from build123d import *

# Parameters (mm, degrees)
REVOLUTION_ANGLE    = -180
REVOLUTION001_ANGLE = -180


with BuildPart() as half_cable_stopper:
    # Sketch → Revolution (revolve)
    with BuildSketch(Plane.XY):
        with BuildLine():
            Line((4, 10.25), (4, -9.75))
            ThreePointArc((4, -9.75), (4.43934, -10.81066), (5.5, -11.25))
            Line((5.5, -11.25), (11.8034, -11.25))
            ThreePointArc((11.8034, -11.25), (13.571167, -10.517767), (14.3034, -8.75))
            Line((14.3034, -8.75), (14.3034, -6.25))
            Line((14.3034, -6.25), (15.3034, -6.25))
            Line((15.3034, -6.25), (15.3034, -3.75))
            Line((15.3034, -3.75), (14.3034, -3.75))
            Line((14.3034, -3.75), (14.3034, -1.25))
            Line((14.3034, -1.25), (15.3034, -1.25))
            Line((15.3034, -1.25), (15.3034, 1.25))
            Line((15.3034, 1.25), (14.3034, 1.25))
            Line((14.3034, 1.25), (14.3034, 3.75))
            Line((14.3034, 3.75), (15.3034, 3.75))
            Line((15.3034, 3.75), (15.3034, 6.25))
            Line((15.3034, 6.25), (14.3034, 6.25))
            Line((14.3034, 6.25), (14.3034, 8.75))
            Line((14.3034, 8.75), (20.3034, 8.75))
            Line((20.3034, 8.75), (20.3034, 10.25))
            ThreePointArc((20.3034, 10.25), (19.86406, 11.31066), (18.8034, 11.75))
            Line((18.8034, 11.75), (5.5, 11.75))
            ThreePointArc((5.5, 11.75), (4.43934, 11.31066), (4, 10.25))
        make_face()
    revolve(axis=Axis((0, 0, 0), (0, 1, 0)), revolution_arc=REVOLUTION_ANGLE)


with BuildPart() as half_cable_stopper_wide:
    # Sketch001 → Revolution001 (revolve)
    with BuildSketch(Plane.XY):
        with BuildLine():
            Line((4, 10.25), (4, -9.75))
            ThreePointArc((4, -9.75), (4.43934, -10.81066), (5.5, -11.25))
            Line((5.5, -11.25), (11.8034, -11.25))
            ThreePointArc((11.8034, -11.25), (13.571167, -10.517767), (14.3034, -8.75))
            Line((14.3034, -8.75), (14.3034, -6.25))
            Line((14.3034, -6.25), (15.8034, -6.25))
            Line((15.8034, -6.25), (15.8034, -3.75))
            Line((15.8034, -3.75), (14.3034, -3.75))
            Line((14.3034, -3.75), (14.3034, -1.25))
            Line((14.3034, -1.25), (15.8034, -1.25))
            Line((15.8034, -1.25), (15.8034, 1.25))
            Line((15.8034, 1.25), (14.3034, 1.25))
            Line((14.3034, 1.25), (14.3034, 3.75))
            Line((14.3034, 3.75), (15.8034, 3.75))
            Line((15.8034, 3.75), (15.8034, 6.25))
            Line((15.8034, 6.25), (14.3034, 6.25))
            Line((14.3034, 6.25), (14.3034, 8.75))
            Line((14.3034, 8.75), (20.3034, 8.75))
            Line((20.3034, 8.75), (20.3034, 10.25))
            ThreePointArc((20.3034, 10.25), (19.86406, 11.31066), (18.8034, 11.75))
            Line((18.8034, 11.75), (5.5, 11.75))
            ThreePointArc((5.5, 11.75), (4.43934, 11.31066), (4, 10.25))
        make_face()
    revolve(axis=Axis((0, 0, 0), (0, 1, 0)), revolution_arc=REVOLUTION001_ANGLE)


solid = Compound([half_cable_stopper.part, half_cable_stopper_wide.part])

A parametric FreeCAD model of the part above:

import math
import FreeCAD as App
import Part
import Sketcher

V = App.Vector

doc = App.newDocument("Part")
body = doc.addObject("PartDesign::Body", "Body")

# Sketch on XY plane
sketch1 = body.newObject("Sketcher::SketchObject", "Sketch")
sketch1.AttachmentSupport = (doc.getObject("XY_Plane"), [""])
sketch1.MapMode = "FlatFace"
sketch1.addGeometry([
    Part.LineSegment(V(4, 10.2, 0), V(4, -9.8, 0)),  # 0
    Part.ArcOfCircle(Part.Circle(V(5.5, -9.7, 0), V(0, 0, 1), 1.5), math.radians(-180), math.radians(-90)),  # 1
    Part.LineSegment(V(5.5, -11.2, 0), V(11.8, -11.2, 0)),  # 2
    Part.ArcOfCircle(Part.Circle(V(11.8, -8.8, 0), V(0, 0, 1), 2.5), math.radians(-90), math.radians(0)),  # 3
    Part.LineSegment(V(14.3, -8.8, 0), V(14.3, -6.2, 0)),  # 4
    Part.LineSegment(V(14.3, -6.2, 0), V(15.3, -6.2, 0)),  # 5
    Part.LineSegment(V(15.3, -6.2, 0), V(15.3, -3.8, 0)),  # 6
    Part.LineSegment(V(15.3, -3.8, 0), V(14.3, -3.8, 0)),  # 7
    Part.LineSegment(V(14.3, -3.8, 0), V(14.3, -1.2, 0)),  # 8
    Part.LineSegment(V(14.3, -1.2, 0), V(15.3, -1.2, 0)),  # 9
    Part.LineSegment(V(15.3, -1.2, 0), V(15.3, 1.2, 0)),  # 10
    Part.LineSegment(V(15.3, 1.2, 0), V(14.3, 1.2, 0)),  # 11
    Part.LineSegment(V(14.3, 1.2, 0), V(14.3, 3.8, 0)),  # 12
    Part.LineSegment(V(14.3, 3.8, 0), V(15.3, 3.8, 0)),  # 13
    Part.LineSegment(V(15.3, 3.8, 0), V(15.3, 6.2, 0)),  # 14
    Part.LineSegment(V(15.3, 6.2, 0), V(14.3, 6.2, 0)),  # 15
    Part.LineSegment(V(14.3, 6.2, 0), V(14.3, 8.8, 0)),  # 16
    Part.LineSegment(V(14.3, 8.8, 0), V(20.3, 8.8, 0)),  # 17
    Part.LineSegment(V(20.3, 8.8, 0), V(20.3, 10.2, 0)),  # 18
    Part.ArcOfCircle(Part.Circle(V(18.8, 10.2, 0), V(0, 0, 1), 1.5), math.radians(0), math.radians(90)),  # 19
    Part.LineSegment(V(18.8, 11.8, 0), V(5.5, 11.8, 0)),  # 20
    Part.ArcOfCircle(Part.Circle(V(5.5, 10.2, 0), V(0, 0, 1), 1.5), math.radians(90), math.radians(180)),  # 21
], False)
sketch1.addConstraint([
    Sketcher.Constraint("Tangent", 0, 2, 1, 1),
    Sketcher.Constraint("Tangent", 1, 2, 2, 1),
    Sketcher.Constraint("Tangent", 2, 2, 3, 1),
    Sketcher.Constraint("Tangent", 3, 2, 4, 1),
    Sketcher.Constraint("Coincident", 4, 2, 5, 1),
    Sketcher.Constraint("Coincident", 5, 2, 6, 1),
    Sketcher.Constraint("Coincident", 6, 2, 7, 1),
    Sketcher.Constraint("Coincident", 7, 2, 8, 1),
    Sketcher.Constraint("Coincident", 8, 2, 9, 1),
    Sketcher.Constraint("Coincident", 9, 2, 10, 1),
    Sketcher.Constraint("Coincident", 10, 2, 11, 1),
    Sketcher.Constraint("Coincident", 11, 2, 12, 1),
    Sketcher.Constraint("Coincident", 12, 2, 13, 1),
    Sketcher.Constraint("Coincident", 13, 2, 14, 1),
    Sketcher.Constraint("Coincident", 14, 2, 15, 1),
    Sketcher.Constraint("Coincident", 15, 2, 16, 1),
    Sketcher.Constraint("Coincident", 16, 2, 17, 1),
    Sketcher.Constraint("Coincident", 17, 2, 18, 1),
    Sketcher.Constraint("Tangent", 18, 2, 19, 1),
    Sketcher.Constraint("Tangent", 19, 2, 20, 1),
    Sketcher.Constraint("Tangent", 20, 2, 21, 1),
    Sketcher.Constraint("Tangent", 21, 2, 0, 1),
    Sketcher.Constraint("Vertical", 0),
    Sketcher.Constraint("Horizontal", 2),
    Sketcher.Constraint("Vertical", 4),
    Sketcher.Constraint("Horizontal", 5),
    Sketcher.Constraint("Vertical", 6),
    Sketcher.Constraint("Horizontal", 7),
    Sketcher.Constraint("Vertical", 8),
    Sketcher.Constraint("Horizontal", 9),
    Sketcher.Constraint("Vertical", 10),
    Sketcher.Constraint("Horizontal", 11),
    Sketcher.Constraint("Vertical", 12),
    Sketcher.Constraint("Horizontal", 13),
    Sketcher.Constraint("Vertical", 14),
    Sketcher.Constraint("Horizontal", 15),
    Sketcher.Constraint("Vertical", 16),
    Sketcher.Constraint("Horizontal", 17),
    Sketcher.Constraint("Vertical", 18),
    Sketcher.Constraint("Horizontal", 20),
    Sketcher.Constraint("Equal", 1, 19),
    Sketcher.Constraint("Equal", 19, 21),
    Sketcher.Constraint("Symmetric", 8, 2, 11, 2, -1),
    Sketcher.Constraint("Symmetric", 6, 2, 13, 2, -1),
    Sketcher.Constraint("Symmetric", 4, 2, 15, 2, -1),
    Sketcher.Constraint("Vertical", 4, 2, 7, 2),
    Sketcher.Constraint("Vertical", 6, 2, 9, 2),
    Sketcher.Constraint("Equal", 4, 6),
    Sketcher.Constraint("Equal", 6, 8),
    Sketcher.Constraint("Equal", 8, 10),
    Sketcher.Constraint("Equal", 14, 16),
    Sketcher.Constraint("Radius", 1, 1.500001),
    Sketcher.Constraint("Radius", 3, 2.5),
    Sketcher.Constraint("DistanceX", 5, 1, 5, 2, 1.0),
    Sketcher.Constraint("DistanceX", 17, 1, 17, 2, 6.0),
    Sketcher.Constraint("DistanceY", 0, 2, 0, 1, 20.0),
    Sketcher.Constraint("DistanceY", 4, 1, 4, 2, 2.5),
    Sketcher.Constraint("DistanceX", -1, 1, 0, 2, 4.0),
    Sketcher.Constraint("DistanceX", 2, 1, 2, 2, 6.3034),
])
revolution = body.newObject("PartDesign::Revolution", "Revolution")
revolution.Profile = sketch1
revolution.ReferenceAxis = (sketch1, ["V_Axis"])
revolution.Angle = 180
revolution.Reversed = True
body2 = doc.addObject("PartDesign::Body", "Body001")

# Sketch on XY plane
sketch2 = body2.newObject("Sketcher::SketchObject", "Sketch001")
sketch2.AttachmentSupport = (doc.getObject("XY_Plane001"), [""])
sketch2.MapMode = "FlatFace"
sketch2.addGeometry([
    Part.LineSegment(V(4, 10.2, 0), V(4, -9.8, 0)),  # 0
    Part.ArcOfCircle(Part.Circle(V(5.5, -9.7, 0), V(0, 0, 1), 1.5), math.radians(-180), math.radians(-90)),  # 1
    Part.LineSegment(V(5.5, -11.2, 0), V(11.8, -11.2, 0)),  # 2
    Part.ArcOfCircle(Part.Circle(V(11.8, -8.8, 0), V(0, 0, 1), 2.5), math.radians(-90), math.radians(0)),  # 3
    Part.LineSegment(V(14.3, -8.8, 0), V(14.3, -6.2, 0)),  # 4
    Part.LineSegment(V(14.3, -6.2, 0), V(15.8, -6.2, 0)),  # 5
    Part.LineSegment(V(15.8, -6.2, 0), V(15.8, -3.8, 0)),  # 6
    Part.LineSegment(V(15.8, -3.8, 0), V(14.3, -3.8, 0)),  # 7
    Part.LineSegment(V(14.3, -3.8, 0), V(14.3, -1.2, 0)),  # 8
    Part.LineSegment(V(14.3, -1.2, 0), V(15.8, -1.2, 0)),  # 9
    Part.LineSegment(V(15.8, -1.2, 0), V(15.8, 1.2, 0)),  # 10
    Part.LineSegment(V(15.8, 1.2, 0), V(14.3, 1.2, 0)),  # 11
    Part.LineSegment(V(14.3, 1.2, 0), V(14.3, 3.8, 0)),  # 12
    Part.LineSegment(V(14.3, 3.8, 0), V(15.8, 3.8, 0)),  # 13
    Part.LineSegment(V(15.8, 3.8, 0), V(15.8, 6.2, 0)),  # 14
    Part.LineSegment(V(15.8, 6.2, 0), V(14.3, 6.2, 0)),  # 15
    Part.LineSegment(V(14.3, 6.2, 0), V(14.3, 8.8, 0)),  # 16
    Part.LineSegment(V(14.3, 8.8, 0), V(20.3, 8.8, 0)),  # 17
    Part.LineSegment(V(20.3, 8.8, 0), V(20.3, 10.2, 0)),  # 18
    Part.ArcOfCircle(Part.Circle(V(18.8, 10.2, 0), V(0, 0, 1), 1.5), math.radians(0), math.radians(90)),  # 19
    Part.LineSegment(V(18.8, 11.8, 0), V(5.5, 11.8, 0)),  # 20
    Part.ArcOfCircle(Part.Circle(V(5.5, 10.2, 0), V(0, 0, 1), 1.5), math.radians(90), math.radians(180)),  # 21
], False)
sketch2.addConstraint([
    Sketcher.Constraint("Tangent", 0, 2, 1, 1),
    Sketcher.Constraint("Tangent", 1, 2, 2, 1),
    Sketcher.Constraint("Tangent", 2, 2, 3, 1),
    Sketcher.Constraint("Tangent", 3, 2, 4, 1),
    Sketcher.Constraint("Coincident", 4, 2, 5, 1),
    Sketcher.Constraint("Coincident", 5, 2, 6, 1),
    Sketcher.Constraint("Coincident", 6, 2, 7, 1),
    Sketcher.Constraint("Coincident", 7, 2, 8, 1),
    Sketcher.Constraint("Coincident", 8, 2, 9, 1),
    Sketcher.Constraint("Coincident", 9, 2, 10, 1),
    Sketcher.Constraint("Coincident", 10, 2, 11, 1),
    Sketcher.Constraint("Coincident", 11, 2, 12, 1),
    Sketcher.Constraint("Coincident", 12, 2, 13, 1),
    Sketcher.Constraint("Coincident", 13, 2, 14, 1),
    Sketcher.Constraint("Coincident", 14, 2, 15, 1),
    Sketcher.Constraint("Coincident", 15, 2, 16, 1),
    Sketcher.Constraint("Coincident", 16, 2, 17, 1),
    Sketcher.Constraint("Coincident", 17, 2, 18, 1),
    Sketcher.Constraint("Tangent", 18, 2, 19, 1),
    Sketcher.Constraint("Tangent", 19, 2, 20, 1),
    Sketcher.Constraint("Tangent", 20, 2, 21, 1),
    Sketcher.Constraint("Tangent", 21, 2, 0, 1),
    Sketcher.Constraint("Vertical", 0),
    Sketcher.Constraint("Horizontal", 2),
    Sketcher.Constraint("Vertical", 4),
    Sketcher.Constraint("Horizontal", 5),
    Sketcher.Constraint("Vertical", 6),
    Sketcher.Constraint("Horizontal", 7),
    Sketcher.Constraint("Vertical", 8),
    Sketcher.Constraint("Horizontal", 9),
    Sketcher.Constraint("Vertical", 10),
    Sketcher.Constraint("Horizontal", 11),
    Sketcher.Constraint("Vertical", 12),
    Sketcher.Constraint("Horizontal", 13),
    Sketcher.Constraint("Vertical", 14),
    Sketcher.Constraint("Horizontal", 15),
    Sketcher.Constraint("Vertical", 16),
    Sketcher.Constraint("Horizontal", 17),
    Sketcher.Constraint("Vertical", 18),
    Sketcher.Constraint("Horizontal", 20),
    Sketcher.Constraint("Equal", 1, 19),
    Sketcher.Constraint("Equal", 19, 21),
    Sketcher.Constraint("Symmetric", 8, 2, 11, 2, -1),
    Sketcher.Constraint("Symmetric", 6, 2, 13, 2, -1),
    Sketcher.Constraint("Symmetric", 4, 2, 15, 2, -1),
    Sketcher.Constraint("Vertical", 4, 2, 7, 2),
    Sketcher.Constraint("Vertical", 6, 2, 9, 2),
    Sketcher.Constraint("Equal", 4, 6),
    Sketcher.Constraint("Equal", 6, 8),
    Sketcher.Constraint("Equal", 8, 10),
    Sketcher.Constraint("Equal", 14, 16),
    Sketcher.Constraint("Equal", 15, 18),
    Sketcher.Constraint("Radius", 1, 1.500001),
    Sketcher.Constraint("Radius", 3, 2.5),
    Sketcher.Constraint("DistanceX", 17, 1, 17, 2, 6.0),
    Sketcher.Constraint("DistanceY", 0, 2, 0, 1, 20.0),
    Sketcher.Constraint("DistanceX", 5, 1, 5, 2, 1.5),
    Sketcher.Constraint("DistanceX", -1, 1, 0, 2, 4.0),
    Sketcher.Constraint("DistanceX", 2, 1, 2, 2, 6.3034),
])
revolution2 = body2.newObject("PartDesign::Revolution", "Revolution001")
revolution2.Profile = sketch2
revolution2.ReferenceAxis = (sketch2, ["V_Axis"])
revolution2.Angle = 180
revolution2.Reversed = True

doc.recompute()
